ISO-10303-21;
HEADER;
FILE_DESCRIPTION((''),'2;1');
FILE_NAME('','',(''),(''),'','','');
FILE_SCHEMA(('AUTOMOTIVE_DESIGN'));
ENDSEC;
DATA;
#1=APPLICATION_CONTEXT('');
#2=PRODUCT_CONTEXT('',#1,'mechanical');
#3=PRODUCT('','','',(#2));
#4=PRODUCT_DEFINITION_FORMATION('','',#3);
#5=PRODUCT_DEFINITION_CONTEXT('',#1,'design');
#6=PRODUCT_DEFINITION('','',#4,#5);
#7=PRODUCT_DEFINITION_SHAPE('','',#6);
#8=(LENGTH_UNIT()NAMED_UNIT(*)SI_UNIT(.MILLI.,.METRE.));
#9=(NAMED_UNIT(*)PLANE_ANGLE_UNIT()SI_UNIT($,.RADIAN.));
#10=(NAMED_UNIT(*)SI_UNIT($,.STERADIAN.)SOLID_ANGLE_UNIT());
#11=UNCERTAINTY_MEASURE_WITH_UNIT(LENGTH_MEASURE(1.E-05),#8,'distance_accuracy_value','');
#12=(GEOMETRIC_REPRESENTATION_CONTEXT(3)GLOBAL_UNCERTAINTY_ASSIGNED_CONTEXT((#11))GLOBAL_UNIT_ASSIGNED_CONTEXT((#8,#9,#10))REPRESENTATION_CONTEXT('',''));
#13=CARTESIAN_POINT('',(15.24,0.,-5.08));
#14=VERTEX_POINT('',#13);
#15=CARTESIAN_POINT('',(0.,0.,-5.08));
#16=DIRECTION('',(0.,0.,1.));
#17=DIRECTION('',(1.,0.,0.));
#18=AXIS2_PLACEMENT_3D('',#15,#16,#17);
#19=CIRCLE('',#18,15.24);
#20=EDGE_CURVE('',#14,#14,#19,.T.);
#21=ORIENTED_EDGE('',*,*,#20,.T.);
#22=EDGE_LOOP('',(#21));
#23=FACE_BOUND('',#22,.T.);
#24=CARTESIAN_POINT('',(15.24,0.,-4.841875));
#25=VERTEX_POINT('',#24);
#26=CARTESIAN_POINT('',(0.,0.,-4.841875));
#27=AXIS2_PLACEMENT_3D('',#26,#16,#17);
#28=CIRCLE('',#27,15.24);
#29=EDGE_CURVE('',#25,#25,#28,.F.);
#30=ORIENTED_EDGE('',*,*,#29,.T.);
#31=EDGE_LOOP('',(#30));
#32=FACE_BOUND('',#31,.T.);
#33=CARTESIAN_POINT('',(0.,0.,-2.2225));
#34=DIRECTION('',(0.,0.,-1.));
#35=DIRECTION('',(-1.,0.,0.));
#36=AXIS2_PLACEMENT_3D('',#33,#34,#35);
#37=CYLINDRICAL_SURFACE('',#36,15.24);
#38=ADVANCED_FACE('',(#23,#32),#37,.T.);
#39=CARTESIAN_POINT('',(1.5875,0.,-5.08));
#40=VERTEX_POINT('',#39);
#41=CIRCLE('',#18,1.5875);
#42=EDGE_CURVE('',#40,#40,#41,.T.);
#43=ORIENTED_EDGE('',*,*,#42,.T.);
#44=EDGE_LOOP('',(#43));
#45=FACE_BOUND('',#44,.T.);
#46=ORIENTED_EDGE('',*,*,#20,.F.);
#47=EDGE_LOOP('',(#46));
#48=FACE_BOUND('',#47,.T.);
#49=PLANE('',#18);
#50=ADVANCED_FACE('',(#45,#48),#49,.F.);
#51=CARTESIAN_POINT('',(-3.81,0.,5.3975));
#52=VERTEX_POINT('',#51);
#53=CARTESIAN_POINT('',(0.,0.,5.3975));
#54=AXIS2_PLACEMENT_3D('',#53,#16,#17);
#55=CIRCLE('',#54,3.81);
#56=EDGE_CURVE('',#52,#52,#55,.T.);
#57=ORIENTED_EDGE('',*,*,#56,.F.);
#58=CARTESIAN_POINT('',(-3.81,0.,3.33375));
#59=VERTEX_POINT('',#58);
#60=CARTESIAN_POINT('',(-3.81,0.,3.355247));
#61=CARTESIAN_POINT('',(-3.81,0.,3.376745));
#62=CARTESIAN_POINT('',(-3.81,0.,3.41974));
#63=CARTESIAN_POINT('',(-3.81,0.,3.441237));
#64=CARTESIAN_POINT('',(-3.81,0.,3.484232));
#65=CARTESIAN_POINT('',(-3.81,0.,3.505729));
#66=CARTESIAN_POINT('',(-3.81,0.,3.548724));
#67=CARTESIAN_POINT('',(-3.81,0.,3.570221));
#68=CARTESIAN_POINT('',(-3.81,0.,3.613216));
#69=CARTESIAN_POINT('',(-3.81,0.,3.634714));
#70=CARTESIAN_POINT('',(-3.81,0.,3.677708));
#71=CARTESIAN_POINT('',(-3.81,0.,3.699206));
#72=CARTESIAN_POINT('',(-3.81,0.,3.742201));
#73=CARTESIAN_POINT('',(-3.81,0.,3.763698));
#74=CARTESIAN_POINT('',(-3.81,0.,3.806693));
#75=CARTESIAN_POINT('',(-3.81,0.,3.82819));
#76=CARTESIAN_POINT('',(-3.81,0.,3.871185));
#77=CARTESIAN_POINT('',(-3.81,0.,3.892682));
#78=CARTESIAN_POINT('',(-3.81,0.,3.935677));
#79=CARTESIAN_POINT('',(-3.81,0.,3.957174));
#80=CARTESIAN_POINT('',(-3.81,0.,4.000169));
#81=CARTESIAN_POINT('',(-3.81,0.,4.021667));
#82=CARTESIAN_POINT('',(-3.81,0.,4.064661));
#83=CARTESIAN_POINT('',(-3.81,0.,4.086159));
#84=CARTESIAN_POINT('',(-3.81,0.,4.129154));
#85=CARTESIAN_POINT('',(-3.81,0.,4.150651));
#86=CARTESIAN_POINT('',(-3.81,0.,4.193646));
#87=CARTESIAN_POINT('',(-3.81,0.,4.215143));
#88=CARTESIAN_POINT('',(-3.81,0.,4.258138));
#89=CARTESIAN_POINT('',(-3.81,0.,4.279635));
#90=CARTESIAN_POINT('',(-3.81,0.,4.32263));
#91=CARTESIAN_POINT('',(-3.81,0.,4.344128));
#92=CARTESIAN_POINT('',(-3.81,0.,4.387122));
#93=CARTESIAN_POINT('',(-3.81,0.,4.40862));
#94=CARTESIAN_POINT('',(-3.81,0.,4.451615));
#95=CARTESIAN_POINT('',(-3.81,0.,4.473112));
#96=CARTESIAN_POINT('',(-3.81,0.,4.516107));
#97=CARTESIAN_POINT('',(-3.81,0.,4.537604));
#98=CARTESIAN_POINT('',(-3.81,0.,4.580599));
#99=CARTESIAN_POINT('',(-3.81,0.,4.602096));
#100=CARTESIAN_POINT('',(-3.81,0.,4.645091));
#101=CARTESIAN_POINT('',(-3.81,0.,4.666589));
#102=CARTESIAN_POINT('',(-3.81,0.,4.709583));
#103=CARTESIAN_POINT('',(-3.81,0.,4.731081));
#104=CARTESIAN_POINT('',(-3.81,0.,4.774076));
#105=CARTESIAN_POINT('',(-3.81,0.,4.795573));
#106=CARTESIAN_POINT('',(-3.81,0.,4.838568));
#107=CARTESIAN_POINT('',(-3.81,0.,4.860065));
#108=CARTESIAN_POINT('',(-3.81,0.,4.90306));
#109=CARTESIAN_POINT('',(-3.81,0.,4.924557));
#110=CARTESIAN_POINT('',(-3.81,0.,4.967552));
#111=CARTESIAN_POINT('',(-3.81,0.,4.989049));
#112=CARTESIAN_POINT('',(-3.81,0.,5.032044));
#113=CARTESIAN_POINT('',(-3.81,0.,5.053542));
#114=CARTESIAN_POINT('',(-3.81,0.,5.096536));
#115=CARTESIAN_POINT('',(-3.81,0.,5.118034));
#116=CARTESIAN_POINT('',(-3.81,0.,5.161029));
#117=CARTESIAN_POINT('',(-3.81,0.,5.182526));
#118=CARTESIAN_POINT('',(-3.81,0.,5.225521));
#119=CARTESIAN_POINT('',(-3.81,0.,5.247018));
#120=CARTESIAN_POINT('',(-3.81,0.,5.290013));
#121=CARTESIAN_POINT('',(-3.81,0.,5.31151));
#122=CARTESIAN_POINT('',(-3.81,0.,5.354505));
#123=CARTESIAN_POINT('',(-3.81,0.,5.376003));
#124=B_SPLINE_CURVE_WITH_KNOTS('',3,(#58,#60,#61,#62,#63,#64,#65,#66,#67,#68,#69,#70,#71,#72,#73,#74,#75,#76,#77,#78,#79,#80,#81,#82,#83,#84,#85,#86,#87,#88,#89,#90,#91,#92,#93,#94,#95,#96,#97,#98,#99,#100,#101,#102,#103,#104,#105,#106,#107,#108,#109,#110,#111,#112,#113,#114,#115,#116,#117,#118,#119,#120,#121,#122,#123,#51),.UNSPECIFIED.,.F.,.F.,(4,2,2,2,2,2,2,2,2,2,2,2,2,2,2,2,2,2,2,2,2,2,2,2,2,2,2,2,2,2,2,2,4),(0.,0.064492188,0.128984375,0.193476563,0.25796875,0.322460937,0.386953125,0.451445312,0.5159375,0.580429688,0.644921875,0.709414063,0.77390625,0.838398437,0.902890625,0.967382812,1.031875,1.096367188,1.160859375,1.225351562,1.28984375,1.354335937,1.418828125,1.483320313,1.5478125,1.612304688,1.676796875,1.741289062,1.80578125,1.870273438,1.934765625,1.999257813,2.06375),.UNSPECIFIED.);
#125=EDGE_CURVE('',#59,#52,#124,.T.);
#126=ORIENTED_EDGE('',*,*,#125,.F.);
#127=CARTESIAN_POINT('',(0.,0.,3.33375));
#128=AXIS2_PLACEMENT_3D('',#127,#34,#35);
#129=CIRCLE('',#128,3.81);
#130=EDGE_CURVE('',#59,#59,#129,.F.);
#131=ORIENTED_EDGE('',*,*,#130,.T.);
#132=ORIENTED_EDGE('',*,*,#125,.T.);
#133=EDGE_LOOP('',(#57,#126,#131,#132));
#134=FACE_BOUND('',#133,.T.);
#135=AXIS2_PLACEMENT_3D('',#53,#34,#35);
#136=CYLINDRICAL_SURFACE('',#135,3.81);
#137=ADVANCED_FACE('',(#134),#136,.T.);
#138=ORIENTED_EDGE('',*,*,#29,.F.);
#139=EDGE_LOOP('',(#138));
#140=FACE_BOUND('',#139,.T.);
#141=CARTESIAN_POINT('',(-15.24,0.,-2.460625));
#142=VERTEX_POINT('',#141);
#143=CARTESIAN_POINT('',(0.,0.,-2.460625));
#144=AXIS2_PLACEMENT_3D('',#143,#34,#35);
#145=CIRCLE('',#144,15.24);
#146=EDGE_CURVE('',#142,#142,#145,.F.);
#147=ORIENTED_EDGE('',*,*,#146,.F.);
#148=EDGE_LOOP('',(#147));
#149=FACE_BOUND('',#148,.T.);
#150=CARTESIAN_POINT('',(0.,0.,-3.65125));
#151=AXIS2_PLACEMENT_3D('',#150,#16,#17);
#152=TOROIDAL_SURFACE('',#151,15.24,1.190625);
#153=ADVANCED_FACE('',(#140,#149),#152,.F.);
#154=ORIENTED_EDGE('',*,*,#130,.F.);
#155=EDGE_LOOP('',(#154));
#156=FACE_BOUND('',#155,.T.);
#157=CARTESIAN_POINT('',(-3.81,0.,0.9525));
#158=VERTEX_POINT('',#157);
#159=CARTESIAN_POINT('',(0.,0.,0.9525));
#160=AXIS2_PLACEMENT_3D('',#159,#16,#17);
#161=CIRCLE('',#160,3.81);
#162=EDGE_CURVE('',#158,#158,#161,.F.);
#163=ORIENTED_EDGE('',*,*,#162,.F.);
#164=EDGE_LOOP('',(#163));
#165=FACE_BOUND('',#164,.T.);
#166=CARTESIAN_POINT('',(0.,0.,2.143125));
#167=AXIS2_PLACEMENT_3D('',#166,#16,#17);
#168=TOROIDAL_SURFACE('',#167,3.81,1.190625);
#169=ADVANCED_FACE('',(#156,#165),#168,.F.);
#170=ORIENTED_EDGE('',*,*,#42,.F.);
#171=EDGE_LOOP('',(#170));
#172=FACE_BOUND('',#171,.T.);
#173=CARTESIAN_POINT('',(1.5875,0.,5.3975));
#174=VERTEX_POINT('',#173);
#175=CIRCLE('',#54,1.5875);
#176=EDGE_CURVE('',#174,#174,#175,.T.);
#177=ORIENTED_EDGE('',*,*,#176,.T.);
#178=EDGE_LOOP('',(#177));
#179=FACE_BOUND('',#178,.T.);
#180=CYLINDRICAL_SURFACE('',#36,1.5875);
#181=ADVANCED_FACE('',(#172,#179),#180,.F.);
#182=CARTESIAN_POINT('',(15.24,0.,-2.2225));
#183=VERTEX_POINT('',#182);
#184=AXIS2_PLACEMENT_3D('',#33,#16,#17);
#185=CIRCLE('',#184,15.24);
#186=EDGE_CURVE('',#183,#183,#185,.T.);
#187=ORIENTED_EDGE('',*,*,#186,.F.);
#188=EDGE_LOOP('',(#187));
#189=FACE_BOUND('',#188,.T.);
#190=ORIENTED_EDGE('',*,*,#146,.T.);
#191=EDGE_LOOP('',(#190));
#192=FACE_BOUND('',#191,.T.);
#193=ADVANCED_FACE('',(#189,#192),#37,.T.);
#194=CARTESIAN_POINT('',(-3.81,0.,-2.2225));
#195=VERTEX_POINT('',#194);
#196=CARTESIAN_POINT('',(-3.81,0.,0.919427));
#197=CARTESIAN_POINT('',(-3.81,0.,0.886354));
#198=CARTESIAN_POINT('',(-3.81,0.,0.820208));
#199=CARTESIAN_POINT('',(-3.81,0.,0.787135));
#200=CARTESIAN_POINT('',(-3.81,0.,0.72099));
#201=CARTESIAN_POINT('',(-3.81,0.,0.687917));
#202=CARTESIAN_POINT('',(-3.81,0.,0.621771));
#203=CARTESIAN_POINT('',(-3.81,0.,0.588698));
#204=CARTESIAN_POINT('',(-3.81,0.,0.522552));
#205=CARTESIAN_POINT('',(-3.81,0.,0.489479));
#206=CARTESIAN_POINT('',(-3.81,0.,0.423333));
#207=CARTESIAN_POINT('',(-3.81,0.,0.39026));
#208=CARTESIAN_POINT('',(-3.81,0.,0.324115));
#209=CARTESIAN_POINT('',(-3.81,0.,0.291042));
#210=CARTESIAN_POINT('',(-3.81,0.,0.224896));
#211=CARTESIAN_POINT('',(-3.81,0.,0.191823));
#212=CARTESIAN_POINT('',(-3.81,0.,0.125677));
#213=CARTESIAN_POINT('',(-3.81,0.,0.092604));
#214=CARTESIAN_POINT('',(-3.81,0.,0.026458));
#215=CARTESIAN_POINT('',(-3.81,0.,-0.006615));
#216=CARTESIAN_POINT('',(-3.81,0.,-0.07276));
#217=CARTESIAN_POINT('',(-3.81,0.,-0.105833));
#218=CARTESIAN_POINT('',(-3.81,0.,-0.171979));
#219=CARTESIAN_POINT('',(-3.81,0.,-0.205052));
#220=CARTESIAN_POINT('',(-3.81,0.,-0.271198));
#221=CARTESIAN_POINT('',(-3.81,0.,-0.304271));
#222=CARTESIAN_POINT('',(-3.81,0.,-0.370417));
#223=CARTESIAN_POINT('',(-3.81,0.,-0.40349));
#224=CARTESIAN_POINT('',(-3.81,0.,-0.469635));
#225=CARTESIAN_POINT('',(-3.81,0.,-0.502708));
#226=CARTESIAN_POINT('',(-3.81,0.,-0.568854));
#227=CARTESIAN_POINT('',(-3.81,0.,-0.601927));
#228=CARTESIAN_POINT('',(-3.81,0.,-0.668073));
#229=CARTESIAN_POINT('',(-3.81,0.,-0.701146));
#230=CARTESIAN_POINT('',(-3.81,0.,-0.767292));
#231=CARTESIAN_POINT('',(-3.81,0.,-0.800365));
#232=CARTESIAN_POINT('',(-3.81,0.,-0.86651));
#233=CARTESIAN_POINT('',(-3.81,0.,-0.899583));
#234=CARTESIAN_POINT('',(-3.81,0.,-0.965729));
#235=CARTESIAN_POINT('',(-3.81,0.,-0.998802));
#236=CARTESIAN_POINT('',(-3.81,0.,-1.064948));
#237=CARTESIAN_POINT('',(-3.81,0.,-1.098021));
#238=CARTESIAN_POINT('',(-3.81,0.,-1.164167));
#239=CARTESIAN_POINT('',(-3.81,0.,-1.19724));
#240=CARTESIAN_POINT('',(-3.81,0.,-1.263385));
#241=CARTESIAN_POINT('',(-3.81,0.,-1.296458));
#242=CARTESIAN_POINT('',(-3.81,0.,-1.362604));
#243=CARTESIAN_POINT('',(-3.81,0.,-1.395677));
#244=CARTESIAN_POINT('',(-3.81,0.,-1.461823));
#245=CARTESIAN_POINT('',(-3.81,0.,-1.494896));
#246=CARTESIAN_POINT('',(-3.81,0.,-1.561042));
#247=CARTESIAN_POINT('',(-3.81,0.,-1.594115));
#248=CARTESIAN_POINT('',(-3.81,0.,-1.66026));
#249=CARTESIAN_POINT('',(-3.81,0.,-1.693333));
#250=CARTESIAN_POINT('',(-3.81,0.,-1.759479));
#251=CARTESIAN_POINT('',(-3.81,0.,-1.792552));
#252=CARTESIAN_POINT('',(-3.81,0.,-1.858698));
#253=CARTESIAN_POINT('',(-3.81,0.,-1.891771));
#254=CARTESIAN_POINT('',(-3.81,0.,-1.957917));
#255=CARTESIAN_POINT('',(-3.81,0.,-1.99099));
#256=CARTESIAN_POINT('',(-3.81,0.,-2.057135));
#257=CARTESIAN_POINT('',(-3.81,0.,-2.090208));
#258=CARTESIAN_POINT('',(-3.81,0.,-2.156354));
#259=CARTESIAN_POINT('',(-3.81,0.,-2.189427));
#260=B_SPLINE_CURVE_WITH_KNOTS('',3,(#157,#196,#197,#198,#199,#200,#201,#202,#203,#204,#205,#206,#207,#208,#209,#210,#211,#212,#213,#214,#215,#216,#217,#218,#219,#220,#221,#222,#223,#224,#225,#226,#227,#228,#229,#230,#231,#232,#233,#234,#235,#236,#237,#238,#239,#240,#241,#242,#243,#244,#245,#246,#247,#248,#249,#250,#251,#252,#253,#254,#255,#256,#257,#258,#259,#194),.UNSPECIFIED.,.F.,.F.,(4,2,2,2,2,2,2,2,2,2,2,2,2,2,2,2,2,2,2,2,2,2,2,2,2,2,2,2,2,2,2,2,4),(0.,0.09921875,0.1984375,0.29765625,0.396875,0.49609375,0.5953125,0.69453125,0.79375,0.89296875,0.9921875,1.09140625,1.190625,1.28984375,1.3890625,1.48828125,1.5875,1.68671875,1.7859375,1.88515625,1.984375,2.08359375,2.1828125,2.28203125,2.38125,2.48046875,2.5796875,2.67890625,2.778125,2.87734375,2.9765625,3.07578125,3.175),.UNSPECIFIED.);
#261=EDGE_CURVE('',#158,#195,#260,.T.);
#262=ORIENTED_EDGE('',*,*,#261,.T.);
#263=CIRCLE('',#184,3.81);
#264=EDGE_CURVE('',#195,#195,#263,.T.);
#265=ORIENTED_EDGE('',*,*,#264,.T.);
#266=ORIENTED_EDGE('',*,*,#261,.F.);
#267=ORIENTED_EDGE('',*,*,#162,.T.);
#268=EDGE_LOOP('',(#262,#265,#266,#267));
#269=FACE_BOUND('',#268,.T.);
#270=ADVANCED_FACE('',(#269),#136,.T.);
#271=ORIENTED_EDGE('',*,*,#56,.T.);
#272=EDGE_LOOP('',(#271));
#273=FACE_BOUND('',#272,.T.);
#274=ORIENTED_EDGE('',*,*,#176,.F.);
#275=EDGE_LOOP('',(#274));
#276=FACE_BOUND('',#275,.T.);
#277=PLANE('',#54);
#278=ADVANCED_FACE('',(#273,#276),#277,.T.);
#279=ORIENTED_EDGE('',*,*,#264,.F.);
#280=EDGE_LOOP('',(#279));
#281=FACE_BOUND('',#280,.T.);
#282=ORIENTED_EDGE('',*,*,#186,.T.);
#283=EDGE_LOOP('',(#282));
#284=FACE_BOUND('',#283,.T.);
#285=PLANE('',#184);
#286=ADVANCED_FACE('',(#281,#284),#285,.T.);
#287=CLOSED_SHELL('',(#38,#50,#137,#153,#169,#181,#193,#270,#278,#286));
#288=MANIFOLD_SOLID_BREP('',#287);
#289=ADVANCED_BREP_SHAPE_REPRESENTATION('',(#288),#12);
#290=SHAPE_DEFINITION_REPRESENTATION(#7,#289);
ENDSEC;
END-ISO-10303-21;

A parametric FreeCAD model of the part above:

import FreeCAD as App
import Part
import Sketcher
from FreeCAD import Vector
Q = App.Units.Quantity

doc = App.newDocument("Part")
params = doc.addObject("Spreadsheet::Sheet", "Params")
for row, (alias, value) in enumerate([
    ("sketch1_diameter", "1.2 in"),
    ("sketch1_diameter2", "0.125 in"),
    ("pad1_length", "0.1125 in"),
    ("sketch2_diameter", "0.3 in"),
    ("sketch2_diameter2", "0.125 in"),
    ("pad2_length", "0.3 in"),
    ("sketch3_diameter", "0.09375 in"),
    ("groove_angle", "360 deg"),
], start=1):
    params.set(f"A{row}", alias)
    params.set(f"B{row}", "=" + value)
    params.setAlias(f"B{row}", alias)

body = doc.addObject("PartDesign::Body", "Body")

# Sketch on XY plane
sketch1 = body.newObject("Sketcher::SketchObject", "Sketch")
sketch1.AttachmentSupport = (doc.getObject("XY_Plane"), [""])
sketch1.MapMode = "FlatFace"
sketch1.AttachmentOffset = App.Placement(Vector(0, 0, -0.2 * 25.4), App.Rotation())
sketch1.addGeometry([
    Part.Circle(Vector(0, 0, 0), Vector(0, 0, 1), 15.2),
    Part.Circle(Vector(0, 0, 0), Vector(0, 0, 1), 1.6),
], False)
sketch1.addConstraint([
    Sketcher.Constraint("Coincident", 0, 3, -1, 1),
    Sketcher.Constraint("Coincident", 1, 3, -1, 1),
    Sketcher.Constraint("Diameter", 0, Q("1.2 in")),
    Sketcher.Constraint("Diameter", 1, Q("0.125 in")),
])
sketch1.setExpression("Constraints[2]", "Params.sketch1_diameter")
sketch1.setExpression("Constraints[3]", "Params.sketch1_diameter2")
pad1 = body.newObject("PartDesign::Pad", "Pad")
pad1.Profile = sketch1
pad1.setExpression("Length", "Params.pad1_length")

# Sketch on XY plane
sketch2 = body.newObject("Sketcher::SketchObject", "Sketch001")
sketch2.AttachmentSupport = (doc.getObject("XY_Plane"), [""])
sketch2.MapMode = "FlatFace"
sketch2.AttachmentOffset = App.Placement(Vector(0, 0, -0.0875 * 25.4), App.Rotation())
sketch2.addGeometry([
    Part.Circle(Vector(0, 0, 0), Vector(0, 0, 1), 3.8),
    Part.Circle(Vector(0, 0, 0), Vector(0, 0, 1), 1.6),
], False)
sketch2.addConstraint([
    Sketcher.Constraint("Coincident", 0, 3, -1, 1),
    Sketcher.Constraint("Coincident", 1, 3, -1, 1),
    Sketcher.Constraint("Diameter", 0, Q("0.3 in")),
    Sketcher.Constraint("Diameter", 1, Q("0.125 in")),
])
sketch2.setExpression("Constraints[2]", "Params.sketch2_diameter")
sketch2.setExpression("Constraints[3]", "Params.sketch2_diameter2")
pad2 = body.newObject("PartDesign::Pad", "Pad001")
pad2.Profile = sketch2
pad2.setExpression("Length", "Params.pad2_length")

# Sketch on XZ plane
sketch3 = body.newObject("Sketcher::SketchObject", "Sketch002")
sketch3.AttachmentSupport = (doc.getObject("XZ_Plane"), [""])
sketch3.MapMode = "FlatFace"
sketch3.addGeometry([
    Part.Circle(Vector(3.8, 2.1, 0), Vector(0, 0, 1), 1.2),
    Part.Circle(Vector(15.2, -3.7, 0), Vector(0, 0, 1), 1.2),
], False)
sketch3.addConstraint([
    Sketcher.Constraint("Equal", 0, 1),
    Sketcher.Constraint("Diameter", 0, Q("0.09375 in")),
    Sketcher.Constraint("DistanceX", -1, 1, 1, 3, Q("0.6 in")),
    Sketcher.Constraint("DistanceX", -1, 1, 0, 3, Q("0.15 in")),
    Sketcher.Constraint("DistanceY", 1, 3, -1, 1, 3.65125),
    Sketcher.Constraint("DistanceY", -1, 1, 0, 3, 2.143125),
])
sketch3.setExpression("Constraints[1]", "Params.sketch3_diameter")
groove = body.newObject("PartDesign::Groove", "Groove")
groove.Profile = sketch3
groove.ReferenceAxis = (sketch3, ["V_Axis"])
groove.setExpression("Angle", "Params.groove_angle")

doc.recompute()
